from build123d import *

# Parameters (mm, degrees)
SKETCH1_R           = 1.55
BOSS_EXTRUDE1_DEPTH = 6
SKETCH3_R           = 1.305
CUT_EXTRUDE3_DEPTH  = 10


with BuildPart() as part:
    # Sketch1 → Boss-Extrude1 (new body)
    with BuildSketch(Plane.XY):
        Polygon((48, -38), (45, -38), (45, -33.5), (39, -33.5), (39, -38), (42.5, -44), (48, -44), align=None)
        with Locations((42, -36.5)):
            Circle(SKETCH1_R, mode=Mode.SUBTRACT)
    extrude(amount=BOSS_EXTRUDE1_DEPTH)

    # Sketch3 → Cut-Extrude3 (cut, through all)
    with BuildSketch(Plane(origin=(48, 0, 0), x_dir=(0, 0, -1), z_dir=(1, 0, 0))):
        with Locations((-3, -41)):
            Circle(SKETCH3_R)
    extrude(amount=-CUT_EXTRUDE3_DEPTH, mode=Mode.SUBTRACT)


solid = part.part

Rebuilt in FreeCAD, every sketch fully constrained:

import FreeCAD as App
import Part
import Sketcher

V = App.Vector
Q = App.Units.Quantity

doc = App.newDocument("Part")
params = doc.addObject("Spreadsheet::Sheet", "Params")
for row, (alias, value) in enumerate([
    ("sketch1_diameter", "3.1 mm"),
    ("sketch1_width", "3 mm"),
    ("sketch1_width2", "6 mm"),
    ("sketch1_width3", "5.5 mm"),
    ("sketch1_height", "4.5 mm"),
    ("pad1_length", "6 mm"),
    ("sketch2_diameter", "2.61 mm"),
], start=1):
    params.set(f"A{row}", alias)
    params.set(f"B{row}", "=" + value)
    params.setAlias(f"B{row}", alias)

body = doc.addObject("PartDesign::Body", "Body")

sketch1 = body.newObject("Sketcher::SketchObject", "Sketch")
sketch1.AttachmentSupport = (doc.getObject("XY_Plane"), [""])
sketch1.MapMode = "FlatFace"
sketch1.addGeometry([
    Part.LineSegment(V(48, -38, 0), V(45, -38, 0)),
    Part.LineSegment(V(45, -38, 0), V(45, -33.5, 0)),
    Part.LineSegment(V(45, -33.5, 0), V(39, -33.5, 0)),
    Part.LineSegment(V(39, -33.5, 0), V(39, -38, 0)),
    Part.LineSegment(V(39, -38, 0), V(42.5, -44, 0)),
    Part.LineSegment(V(42.5, -44, 0), V(48, -44, 0)),
    Part.LineSegment(V(48, -44, 0), V(48, -38, 0)),
    Part.Circle(V(42, -36.5, 0), V(0, 0, 1), 1.55),
], False)
sketch1.addConstraint([
    Sketcher.Constraint("Coincident", 0, 2, 1, 1),
    Sketcher.Constraint("Coincident", 1, 2, 2, 1),
    Sketcher.Constraint("Coincident", 2, 2, 3, 1),
    Sketcher.Constraint("Coincident", 3, 2, 4, 1),
    Sketcher.Constraint("Coincident", 4, 2, 5, 1),
    Sketcher.Constraint("Coincident", 5, 2, 6, 1),
    Sketcher.Constraint("Coincident", 6, 2, 0, 1),
    Sketcher.Constraint("Horizontal", 0),
    Sketcher.Constraint("Vertical", 1),
    Sketcher.Constraint("Horizontal", 2),
    Sketcher.Constraint("Vertical", 3),
    Sketcher.Constraint("Horizontal", 5),
    Sketcher.Constraint("Vertical", 6),
    Sketcher.Constraint("Horizontal", 0, 2, 3, 2),
    Sketcher.Constraint("Equal", 2, 6),
    Sketcher.Constraint("Diameter", 7, Q("3.1 mm")),
    Sketcher.Constraint("DistanceX", 0, 2, 0, 1, Q("3 mm")),
    Sketcher.Constraint("DistanceX", 2, 2, 2, 1, Q("6 mm")),
    Sketcher.Constraint("DistanceX", 5, 1, 5, 2, Q("5.5 mm")),
    Sketcher.Constraint("DistanceY", 1, 1, 1, 2, Q("4.5 mm")),
    Sketcher.Constraint("DistanceX", -1, 1, 7, 3, Q("42 mm")),
    Sketcher.Constraint("DistanceX", -1, 1, 0, 2, Q("45 mm")),
    Sketcher.Constraint("DistanceY", 0, 2, -1, 1, Q("38 mm")),
    Sketcher.Constraint("DistanceY", 7, 3, 1, 2, Q("3 mm")),
])
sketch1.setExpression("Constraints[15]", "Params.sketch1_diameter")
sketch1.setExpression("Constraints[16]", "Params.sketch1_width")
sketch1.setExpression("Constraints[17]", "Params.sketch1_width2")
sketch1.setExpression("Constraints[18]", "Params.sketch1_width3")
sketch1.setExpression("Constraints[19]", "Params.sketch1_height")
pad1 = body.newObject("PartDesign::Pad", "Pad")
pad1.Profile = sketch1
pad1.setExpression("Length", "Params.pad1_length")

sketch2 = body.newObject("Sketcher::SketchObject", "Sketch001")
sketch2.AttachmentSupport = (doc.getObject("YZ_Plane"), [""])
sketch2.MapMode = "FlatFace"
sketch2.AttachmentOffset = App.Placement(V(0, 0, 48), App.Rotation())
sketch2.addGeometry(Part.Circle(V(-41, 3, 0), V(0, 0, 1), 1.305), False)
sketch2.addConstraint([
    Sketcher.Constraint("Diameter", 0, Q("2.61 mm")),
    Sketcher.Constraint("DistanceX", 0, 3, -1, 1, Q("41 mm")),
    Sketcher.Constraint("DistanceY", -1, 1, 0, 3, Q("3 mm")),
])
sketch2.setExpression("Constraints[0]", "Params.sketch2_diameter")
pocket1 = body.newObject("PartDesign::Pocket", "Pocket")
pocket1.Profile = sketch2
pocket1.Type = "ThroughAll"

doc.recompute()
